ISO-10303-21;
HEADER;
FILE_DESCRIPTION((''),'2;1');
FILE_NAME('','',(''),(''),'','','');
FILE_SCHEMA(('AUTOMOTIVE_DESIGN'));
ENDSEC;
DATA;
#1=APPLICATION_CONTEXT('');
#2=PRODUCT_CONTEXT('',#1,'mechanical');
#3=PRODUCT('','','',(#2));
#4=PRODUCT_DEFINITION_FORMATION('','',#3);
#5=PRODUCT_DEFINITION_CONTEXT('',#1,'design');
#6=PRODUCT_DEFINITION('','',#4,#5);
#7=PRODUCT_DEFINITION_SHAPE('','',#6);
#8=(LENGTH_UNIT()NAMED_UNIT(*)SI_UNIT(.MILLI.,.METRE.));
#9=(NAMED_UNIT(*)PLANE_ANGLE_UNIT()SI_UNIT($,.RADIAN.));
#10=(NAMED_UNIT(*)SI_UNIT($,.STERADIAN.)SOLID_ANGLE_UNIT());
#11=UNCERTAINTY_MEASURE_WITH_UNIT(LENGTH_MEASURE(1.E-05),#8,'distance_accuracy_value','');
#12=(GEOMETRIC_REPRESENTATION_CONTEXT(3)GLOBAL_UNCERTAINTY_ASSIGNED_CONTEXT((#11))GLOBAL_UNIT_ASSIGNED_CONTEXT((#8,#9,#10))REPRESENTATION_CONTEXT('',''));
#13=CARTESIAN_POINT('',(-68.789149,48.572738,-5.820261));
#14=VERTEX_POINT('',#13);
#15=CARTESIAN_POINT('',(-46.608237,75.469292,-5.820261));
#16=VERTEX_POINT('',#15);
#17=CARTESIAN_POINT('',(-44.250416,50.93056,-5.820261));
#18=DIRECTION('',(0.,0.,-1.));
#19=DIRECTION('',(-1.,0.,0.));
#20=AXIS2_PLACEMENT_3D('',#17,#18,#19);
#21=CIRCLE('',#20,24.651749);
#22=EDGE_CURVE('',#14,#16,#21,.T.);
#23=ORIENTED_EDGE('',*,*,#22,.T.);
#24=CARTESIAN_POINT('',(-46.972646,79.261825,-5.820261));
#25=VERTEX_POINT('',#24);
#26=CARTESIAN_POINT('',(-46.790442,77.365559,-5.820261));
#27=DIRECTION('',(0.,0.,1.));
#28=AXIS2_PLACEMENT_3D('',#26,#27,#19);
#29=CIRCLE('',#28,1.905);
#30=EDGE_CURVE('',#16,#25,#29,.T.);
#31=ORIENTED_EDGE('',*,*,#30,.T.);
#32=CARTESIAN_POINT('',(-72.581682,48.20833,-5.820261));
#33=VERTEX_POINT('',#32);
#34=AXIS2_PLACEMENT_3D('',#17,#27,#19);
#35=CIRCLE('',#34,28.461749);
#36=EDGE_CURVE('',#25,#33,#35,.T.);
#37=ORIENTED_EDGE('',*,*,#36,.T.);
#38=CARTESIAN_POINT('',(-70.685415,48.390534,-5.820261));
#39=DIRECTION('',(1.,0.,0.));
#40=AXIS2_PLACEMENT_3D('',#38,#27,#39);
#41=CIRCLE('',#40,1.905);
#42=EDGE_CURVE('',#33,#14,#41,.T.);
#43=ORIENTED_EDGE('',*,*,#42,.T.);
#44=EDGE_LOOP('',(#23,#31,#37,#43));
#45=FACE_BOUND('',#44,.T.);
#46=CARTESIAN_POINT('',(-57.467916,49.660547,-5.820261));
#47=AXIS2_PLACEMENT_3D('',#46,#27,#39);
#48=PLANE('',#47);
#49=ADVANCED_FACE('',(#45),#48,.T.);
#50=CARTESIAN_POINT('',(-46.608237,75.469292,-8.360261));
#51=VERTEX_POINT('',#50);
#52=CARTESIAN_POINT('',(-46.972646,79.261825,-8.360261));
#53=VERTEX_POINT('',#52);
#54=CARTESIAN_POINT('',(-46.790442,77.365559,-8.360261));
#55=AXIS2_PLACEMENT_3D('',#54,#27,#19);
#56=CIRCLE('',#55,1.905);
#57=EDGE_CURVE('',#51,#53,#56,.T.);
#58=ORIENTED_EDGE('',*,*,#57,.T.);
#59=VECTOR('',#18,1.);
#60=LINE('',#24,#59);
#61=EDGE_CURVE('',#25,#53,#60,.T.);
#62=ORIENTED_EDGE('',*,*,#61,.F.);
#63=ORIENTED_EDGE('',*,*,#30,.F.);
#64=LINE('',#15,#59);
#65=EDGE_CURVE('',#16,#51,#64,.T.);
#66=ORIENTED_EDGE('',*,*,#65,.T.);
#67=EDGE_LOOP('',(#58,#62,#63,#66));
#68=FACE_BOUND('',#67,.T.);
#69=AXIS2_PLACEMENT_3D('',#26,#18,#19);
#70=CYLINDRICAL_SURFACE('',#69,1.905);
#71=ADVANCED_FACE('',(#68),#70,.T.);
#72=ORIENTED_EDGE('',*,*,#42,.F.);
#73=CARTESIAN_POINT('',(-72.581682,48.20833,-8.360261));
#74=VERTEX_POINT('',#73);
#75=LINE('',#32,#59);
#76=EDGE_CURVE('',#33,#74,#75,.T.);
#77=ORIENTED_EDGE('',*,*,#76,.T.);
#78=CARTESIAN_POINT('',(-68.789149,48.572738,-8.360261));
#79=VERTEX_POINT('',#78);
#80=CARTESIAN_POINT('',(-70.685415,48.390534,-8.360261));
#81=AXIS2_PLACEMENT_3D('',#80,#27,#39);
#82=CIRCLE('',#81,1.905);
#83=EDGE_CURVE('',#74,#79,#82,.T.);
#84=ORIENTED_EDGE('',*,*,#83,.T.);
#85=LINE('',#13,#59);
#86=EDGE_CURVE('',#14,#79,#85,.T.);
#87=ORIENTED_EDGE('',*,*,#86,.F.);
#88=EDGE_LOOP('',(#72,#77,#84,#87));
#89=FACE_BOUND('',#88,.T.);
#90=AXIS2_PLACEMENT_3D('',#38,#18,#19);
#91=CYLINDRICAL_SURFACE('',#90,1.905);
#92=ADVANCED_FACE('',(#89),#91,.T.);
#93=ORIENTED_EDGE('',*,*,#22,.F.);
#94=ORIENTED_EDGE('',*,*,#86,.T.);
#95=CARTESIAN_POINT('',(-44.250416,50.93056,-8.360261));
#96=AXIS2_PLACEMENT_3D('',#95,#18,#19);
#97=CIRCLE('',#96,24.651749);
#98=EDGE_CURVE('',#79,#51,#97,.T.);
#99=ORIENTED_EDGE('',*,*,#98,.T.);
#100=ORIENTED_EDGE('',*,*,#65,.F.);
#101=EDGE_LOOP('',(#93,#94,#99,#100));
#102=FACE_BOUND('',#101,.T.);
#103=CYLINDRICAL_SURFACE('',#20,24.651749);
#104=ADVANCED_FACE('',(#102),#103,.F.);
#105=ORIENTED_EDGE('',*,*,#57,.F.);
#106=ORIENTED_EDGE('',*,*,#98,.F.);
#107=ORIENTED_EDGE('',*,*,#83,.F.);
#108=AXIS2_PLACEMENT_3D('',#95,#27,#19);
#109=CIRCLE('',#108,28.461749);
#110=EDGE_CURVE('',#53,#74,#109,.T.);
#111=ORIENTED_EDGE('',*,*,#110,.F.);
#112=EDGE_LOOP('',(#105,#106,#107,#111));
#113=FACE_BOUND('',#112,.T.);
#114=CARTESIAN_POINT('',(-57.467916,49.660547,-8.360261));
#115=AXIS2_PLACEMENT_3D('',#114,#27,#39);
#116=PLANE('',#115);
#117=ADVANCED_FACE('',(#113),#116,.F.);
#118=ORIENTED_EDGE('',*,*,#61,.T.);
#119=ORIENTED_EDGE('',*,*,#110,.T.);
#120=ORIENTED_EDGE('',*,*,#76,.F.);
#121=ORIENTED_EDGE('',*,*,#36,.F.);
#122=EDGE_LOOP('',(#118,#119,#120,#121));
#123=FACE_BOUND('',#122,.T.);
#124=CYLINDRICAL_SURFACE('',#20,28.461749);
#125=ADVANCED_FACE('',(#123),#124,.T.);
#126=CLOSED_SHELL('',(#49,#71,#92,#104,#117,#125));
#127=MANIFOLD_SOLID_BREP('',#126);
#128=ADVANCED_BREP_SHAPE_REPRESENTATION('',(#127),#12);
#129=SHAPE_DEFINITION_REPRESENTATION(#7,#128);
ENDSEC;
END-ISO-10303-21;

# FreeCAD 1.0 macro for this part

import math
import FreeCAD as App
import Part
import Sketcher

V = App.Vector
Q = App.Units.Quantity

doc = App.newDocument("Part")
body = doc.addObject("PartDesign::Body", "Body")

# Sketch on XY plane
sketch1 = body.newObject("Sketcher::SketchObject", "Sketch")
sketch1.AttachmentSupport = (doc.getObject("XY_Plane"), [""])
sketch1.MapMode = "FlatFace"
sketch1.AttachmentOffset = App.Placement(V(0, 0, -8.360261), App.Rotation())
sketch1.addGeometry([
    Part.ArcOfCircle(Part.Circle(V(-46.790442, 77.365559, 0), V(0, 0, 1), 1.905), math.radians(-84.511544), math.radians(95.488456)),
    Part.ArcOfCircle(Part.Circle(V(-44.250416, 50.93056, 0), V(0, 0, 1), 28.461749), math.radians(95.488456), math.radians(185.488456)),
    Part.ArcOfCircle(Part.Circle(V(-70.685415, 48.390534, 0), V(0, 0, 1), 1.905), math.radians(-174.511544), math.radians(5.488456)),
    Part.ArcOfCircle(Part.Circle(V(-44.250416, 50.93056, 0), V(0, 0, 1), 24.651749), math.radians(95.488456), math.radians(185.488456)),
], False)
sketch1.addConstraint([
    Sketcher.Constraint("Tangent", 0, 2, 1, 1),
    Sketcher.Constraint("Tangent", 1, 2, 2, 1),
    Sketcher.Constraint("Tangent", 2, 2, 3, 2),
    Sketcher.Constraint("Tangent", 3, 1, 0, 1),
    Sketcher.Constraint("Coincident", 3, 3, 1, 3),
    Sketcher.Constraint("Radius", 0, Q("0.075 in")),
    Sketcher.Constraint("Radius", 1, Q("28.461749 mm")),
    Sketcher.Constraint("DistanceY", 1, 3, 0, 3, Q("26.434999 mm")),
    Sketcher.Constraint("DistanceX", 2, 3, 1, 3, Q("26.434999 mm")),
    Sketcher.Constraint("DistanceX", 0, 3, -1, 1, Q("46.790442 mm")),
    Sketcher.Constraint("DistanceY", -1, 1, 0, 3, Q("77.365559 mm")),
])
pad1 = body.newObject("PartDesign::Pad", "Pad")
pad1.Profile = sketch1
pad1.Length = Q("0.1 in")

doc.recompute()
